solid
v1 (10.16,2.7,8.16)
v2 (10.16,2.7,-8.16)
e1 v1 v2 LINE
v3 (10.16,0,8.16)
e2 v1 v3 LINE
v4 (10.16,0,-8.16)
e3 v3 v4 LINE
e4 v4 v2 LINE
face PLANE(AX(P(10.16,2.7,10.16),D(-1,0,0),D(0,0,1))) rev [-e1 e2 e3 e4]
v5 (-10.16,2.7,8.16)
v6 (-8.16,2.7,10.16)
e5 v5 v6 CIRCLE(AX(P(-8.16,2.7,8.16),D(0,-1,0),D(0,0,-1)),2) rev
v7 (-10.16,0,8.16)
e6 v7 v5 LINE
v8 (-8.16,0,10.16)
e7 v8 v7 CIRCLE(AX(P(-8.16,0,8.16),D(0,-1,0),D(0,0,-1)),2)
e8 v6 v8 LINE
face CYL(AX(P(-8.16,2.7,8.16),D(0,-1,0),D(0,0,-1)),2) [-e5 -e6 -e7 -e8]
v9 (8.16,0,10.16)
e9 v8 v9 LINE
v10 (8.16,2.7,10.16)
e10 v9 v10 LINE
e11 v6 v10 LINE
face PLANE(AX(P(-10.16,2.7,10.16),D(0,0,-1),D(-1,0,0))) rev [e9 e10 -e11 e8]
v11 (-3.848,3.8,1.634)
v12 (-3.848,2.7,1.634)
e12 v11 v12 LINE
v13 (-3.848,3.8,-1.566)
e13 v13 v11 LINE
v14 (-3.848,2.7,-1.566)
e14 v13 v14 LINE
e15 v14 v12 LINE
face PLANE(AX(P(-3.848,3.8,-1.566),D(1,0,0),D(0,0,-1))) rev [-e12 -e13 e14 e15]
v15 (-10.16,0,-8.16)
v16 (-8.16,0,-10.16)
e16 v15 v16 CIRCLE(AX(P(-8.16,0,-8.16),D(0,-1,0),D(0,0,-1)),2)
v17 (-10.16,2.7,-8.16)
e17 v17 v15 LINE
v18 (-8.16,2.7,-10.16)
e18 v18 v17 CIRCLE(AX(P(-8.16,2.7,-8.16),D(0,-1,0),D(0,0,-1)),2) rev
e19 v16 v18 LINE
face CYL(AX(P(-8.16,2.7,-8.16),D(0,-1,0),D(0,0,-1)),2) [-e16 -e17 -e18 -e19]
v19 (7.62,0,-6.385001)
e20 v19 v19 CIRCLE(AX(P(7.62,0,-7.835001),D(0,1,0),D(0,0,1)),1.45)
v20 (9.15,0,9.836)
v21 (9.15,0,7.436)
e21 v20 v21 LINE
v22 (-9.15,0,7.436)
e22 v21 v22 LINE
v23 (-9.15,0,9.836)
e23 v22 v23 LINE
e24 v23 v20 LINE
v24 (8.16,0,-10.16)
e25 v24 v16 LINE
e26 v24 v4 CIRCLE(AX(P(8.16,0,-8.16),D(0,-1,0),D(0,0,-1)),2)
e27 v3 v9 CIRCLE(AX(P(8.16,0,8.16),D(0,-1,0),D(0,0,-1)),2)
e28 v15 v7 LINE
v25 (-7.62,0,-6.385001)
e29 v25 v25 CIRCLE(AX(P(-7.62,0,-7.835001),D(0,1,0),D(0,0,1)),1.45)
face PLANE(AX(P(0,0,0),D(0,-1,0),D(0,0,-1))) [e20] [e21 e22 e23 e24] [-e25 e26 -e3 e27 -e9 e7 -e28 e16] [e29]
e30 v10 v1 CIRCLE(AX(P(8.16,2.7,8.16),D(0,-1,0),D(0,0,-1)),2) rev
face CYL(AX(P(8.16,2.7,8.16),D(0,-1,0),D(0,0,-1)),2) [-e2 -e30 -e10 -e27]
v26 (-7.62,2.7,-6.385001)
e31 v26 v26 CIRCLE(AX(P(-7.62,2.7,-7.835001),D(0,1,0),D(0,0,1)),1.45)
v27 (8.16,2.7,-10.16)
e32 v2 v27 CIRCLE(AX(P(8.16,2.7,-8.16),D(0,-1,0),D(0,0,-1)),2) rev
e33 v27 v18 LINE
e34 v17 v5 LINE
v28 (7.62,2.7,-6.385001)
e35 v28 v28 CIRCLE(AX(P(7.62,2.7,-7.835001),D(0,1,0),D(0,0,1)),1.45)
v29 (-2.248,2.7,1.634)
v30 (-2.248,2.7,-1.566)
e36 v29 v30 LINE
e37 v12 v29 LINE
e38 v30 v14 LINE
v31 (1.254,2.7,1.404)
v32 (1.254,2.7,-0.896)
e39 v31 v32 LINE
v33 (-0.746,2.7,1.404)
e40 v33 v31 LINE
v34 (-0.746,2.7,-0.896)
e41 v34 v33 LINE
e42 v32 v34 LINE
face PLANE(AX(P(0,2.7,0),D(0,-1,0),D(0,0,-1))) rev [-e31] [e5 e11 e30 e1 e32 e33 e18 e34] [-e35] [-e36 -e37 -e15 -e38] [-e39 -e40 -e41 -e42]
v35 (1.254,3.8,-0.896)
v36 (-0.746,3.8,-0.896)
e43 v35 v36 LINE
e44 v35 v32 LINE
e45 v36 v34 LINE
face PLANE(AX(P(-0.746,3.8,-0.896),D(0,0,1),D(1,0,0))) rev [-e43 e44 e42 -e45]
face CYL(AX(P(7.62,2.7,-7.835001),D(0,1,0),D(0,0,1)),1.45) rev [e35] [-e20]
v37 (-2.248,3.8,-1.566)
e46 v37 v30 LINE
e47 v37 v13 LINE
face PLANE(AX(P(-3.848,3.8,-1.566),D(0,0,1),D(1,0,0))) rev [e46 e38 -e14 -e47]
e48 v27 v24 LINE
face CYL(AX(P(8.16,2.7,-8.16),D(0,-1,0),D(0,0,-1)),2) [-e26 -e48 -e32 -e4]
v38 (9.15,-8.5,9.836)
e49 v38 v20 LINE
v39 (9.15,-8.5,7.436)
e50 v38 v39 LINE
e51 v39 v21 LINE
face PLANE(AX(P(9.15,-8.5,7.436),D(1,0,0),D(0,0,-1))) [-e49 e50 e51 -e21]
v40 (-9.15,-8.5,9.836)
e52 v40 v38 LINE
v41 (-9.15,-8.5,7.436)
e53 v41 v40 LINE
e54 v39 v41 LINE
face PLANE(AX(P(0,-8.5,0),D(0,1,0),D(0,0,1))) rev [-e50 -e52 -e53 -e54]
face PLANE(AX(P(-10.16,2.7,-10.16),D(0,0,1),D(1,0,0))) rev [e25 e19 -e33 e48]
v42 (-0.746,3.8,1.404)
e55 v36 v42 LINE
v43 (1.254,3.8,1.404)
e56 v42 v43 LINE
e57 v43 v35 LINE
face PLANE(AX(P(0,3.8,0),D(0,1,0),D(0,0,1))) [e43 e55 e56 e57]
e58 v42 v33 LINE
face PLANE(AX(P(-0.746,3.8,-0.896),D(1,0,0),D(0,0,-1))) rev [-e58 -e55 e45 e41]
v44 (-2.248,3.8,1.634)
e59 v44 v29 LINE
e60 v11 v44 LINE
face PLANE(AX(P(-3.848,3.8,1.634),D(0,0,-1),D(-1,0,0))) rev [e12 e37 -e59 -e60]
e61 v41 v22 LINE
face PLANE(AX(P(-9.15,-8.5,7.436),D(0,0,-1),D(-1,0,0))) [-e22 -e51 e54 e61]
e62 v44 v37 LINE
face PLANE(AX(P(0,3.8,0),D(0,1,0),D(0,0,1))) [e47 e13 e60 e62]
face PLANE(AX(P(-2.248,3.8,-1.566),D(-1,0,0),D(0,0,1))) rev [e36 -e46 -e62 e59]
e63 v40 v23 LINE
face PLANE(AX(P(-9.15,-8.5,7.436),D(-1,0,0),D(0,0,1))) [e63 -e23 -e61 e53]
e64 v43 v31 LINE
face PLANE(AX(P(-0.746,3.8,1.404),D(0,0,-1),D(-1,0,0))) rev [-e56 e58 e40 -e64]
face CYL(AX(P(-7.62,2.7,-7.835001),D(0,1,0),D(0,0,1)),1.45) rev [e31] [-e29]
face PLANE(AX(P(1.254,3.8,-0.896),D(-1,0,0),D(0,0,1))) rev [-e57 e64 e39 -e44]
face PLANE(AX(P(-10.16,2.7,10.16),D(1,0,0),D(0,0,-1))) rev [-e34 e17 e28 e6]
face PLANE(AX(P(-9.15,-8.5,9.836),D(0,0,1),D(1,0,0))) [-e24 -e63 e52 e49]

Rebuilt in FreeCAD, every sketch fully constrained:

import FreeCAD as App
import Part
import Sketcher
from FreeCAD import Vector
Q = App.Units.Quantity


def edges_at(feature, points):
    """Names of the edges that pass closest to the given points."""
    edges = feature.Shape.Edges
    near = lambda p: min(range(len(edges)), key=lambda i: edges[i].distToShape(Part.Vertex(*p))[0])
    return sorted({f"Edge{near(p) + 1}" for p in points})

doc = App.newDocument("Part")
body = doc.addObject("PartDesign::Body", "Body")

sketch1 = doc.addObject("Sketcher::SketchObject", "Sketch")
body.addObject(sketch1)
sketch1.AttachmentSupport = (doc.XZ_Plane, [""])
sketch1.MapMode = "FlatFace"
sketch1.addGeometry(Part.LineSegment(Vector(-10, -10, 0), Vector(-10, 10, 0)), False)
sketch1.addGeometry(Part.LineSegment(Vector(-10, 10, 0), Vector(10, 10, 0)), False)
sketch1.addGeometry(Part.LineSegment(Vector(10, 10, 0), Vector(10, -10, 0)), False)
sketch1.addGeometry(Part.LineSegment(Vector(10, -10, 0), Vector(-10, -10, 0)), False)
sketch1.addConstraint(Sketcher.Constraint("Coincident", 0, 2, 1, 1))
sketch1.addConstraint(Sketcher.Constraint("Coincident", 1, 2, 2, 1))
sketch1.addConstraint(Sketcher.Constraint("Coincident", 2, 2, 3, 1))
sketch1.addConstraint(Sketcher.Constraint("Coincident", 3, 2, 0, 1))
sketch1.addConstraint(Sketcher.Constraint("Vertical", 0))
sketch1.addConstraint(Sketcher.Constraint("Horizontal", 1))
sketch1.addConstraint(Sketcher.Constraint("Vertical", 2))
sketch1.addConstraint(Sketcher.Constraint("Horizontal", 3))
sketch1.addConstraint(Sketcher.Constraint("Symmetric", 0, 2, 2, 2, -1, 1))
sketch1.addConstraint(Sketcher.Constraint("Equal", 3, 0))
sketch1.addConstraint(Sketcher.Constraint("DistanceX", 1, 1, 1, 2, Q("20.32 mm")))
pad1 = doc.addObject("PartDesign::Pad", "Pad")
body.addObject(pad1)
pad1.Profile = sketch1
pad1.Length = 2.7
pad1.Reversed = True

sketch2 = doc.addObject("Sketcher::SketchObject", "Sketch001")
body.addObject(sketch2)
sketch2.AttachmentSupport = (doc.XZ_Plane, [""])
sketch2.MapMode = "FlatFace"
sketch2.AttachmentOffset = App.Placement(Vector(0, 0, -2.7), App.Rotation())
sketch2.addGeometry(Part.Circle(Vector(-7.6, -7.8, 0), Vector(0, 0, 1), 1.4), False)
sketch2.addGeometry(Part.Circle(Vector(7.6, -7.8, 0), Vector(0, 0, 1), 1.4), False)
sketch2.addConstraint(Sketcher.Constraint("Equal", 0, 1))
sketch2.addConstraint(Sketcher.Constraint("Symmetric", 0, 3, 1, 3, -2))
sketch2.addConstraint(Sketcher.Constraint("Diameter", 0, Q("2.9 mm")))
sketch2.addConstraint(Sketcher.Constraint("DistanceX", 0, 3, -1, 1, Q("7.62 mm")))
sketch2.addConstraint(Sketcher.Constraint("DistanceY", 0, 3, -1, 1, Q("7.835001 mm")))
doc.recompute()
hole = doc.addObject("PartDesign::Hole", "Hole")
body.addObject(hole)
hole.Profile = sketch2
hole.ThreadType = "None"
hole.Diameter = 2.9
hole.DepthType = "ThroughAll"
hole.Reversed = True

sketch3 = doc.addObject("Sketcher::SketchObject", "Sketch002")
body.addObject(sketch3)
sketch3.AttachmentSupport = (doc.XZ_Plane, [""])
sketch3.MapMode = "FlatFace"
sketch3.AttachmentOffset = App.Placement(Vector(0, 0, -2.7), App.Rotation())
sketch3.addGeometry(Part.LineSegment(Vector(-0.7, -0.9, 0), Vector(-0.7, 1.4, 0)), False)
sketch3.addGeometry(Part.LineSegment(Vector(-0.7, 1.4, 0), Vector(1.3, 1.4, 0)), False)
sketch3.addGeometry(Part.LineSegment(Vector(1.3, 1.4, 0), Vector(1.3, -0.9, 0)), False)
sketch3.addGeometry(Part.LineSegment(Vector(1.3, -0.9, 0), Vector(-0.7, -0.9, 0)), False)
sketch3.addGeometry(Part.LineSegment(Vector(-3.8, -1.6, 0), Vector(-3.8, 1.6, 0)), False)
sketch3.addGeometry(Part.LineSegment(Vector(-3.8, 1.6, 0), Vector(-2.2, 1.6, 0)), False)
sketch3.addGeometry(Part.LineSegment(Vector(-2.2, 1.6, 0), Vector(-2.2, -1.6, 0)), False)
sketch3.addGeometry(Part.LineSegment(Vector(-2.2, -1.6, 0), Vector(-3.8, -1.6, 0)), False)
sketch3.addConstraint(Sketcher.Constraint("Coincident", 0, 2, 1, 1))
sketch3.addConstraint(Sketcher.Constraint("Coincident", 1, 2, 2, 1))
sketch3.addConstraint(Sketcher.Constraint("Coincident", 2, 2, 3, 1))
sketch3.addConstraint(Sketcher.Constraint("Coincident", 3, 2, 0, 1))
sketch3.addConstraint(Sketcher.Constraint("Coincident", 4, 2, 5, 1))
sketch3.addConstraint(Sketcher.Constraint("Coincident", 5, 2, 6, 1))
sketch3.addConstraint(Sketcher.Constraint("Coincident", 6, 2, 7, 1))
sketch3.addConstraint(Sketcher.Constraint("Coincident", 7, 2, 4, 1))
sketch3.addConstraint(Sketcher.Constraint("Vertical", 0))
sketch3.addConstraint(Sketcher.Constraint("Horizontal", 1))
sketch3.addConstraint(Sketcher.Constraint("Vertical", 2))
sketch3.addConstraint(Sketcher.Constraint("Horizontal", 3))
sketch3.addConstraint(Sketcher.Constraint("Vertical", 4))
sketch3.addConstraint(Sketcher.Constraint("Horizontal", 5))
sketch3.addConstraint(Sketcher.Constraint("Vertical", 6))
sketch3.addConstraint(Sketcher.Constraint("Horizontal", 7))
sketch3.addConstraint(Sketcher.Constraint("DistanceX", 1, 1, 1, 2, Q("2 mm")))
sketch3.addConstraint(Sketcher.Constraint("DistanceX", 5, 1, 5, 2, Q("1.6 mm")))
sketch3.addConstraint(Sketcher.Constraint("DistanceY", 0, 1, 0, 2, Q("2.3 mm")))
sketch3.addConstraint(Sketcher.Constraint("DistanceY", 4, 1, 4, 2, Q("3.2 mm")))
sketch3.addConstraint(Sketcher.Constraint("DistanceY", 0, 2, 4, 2, Q("0.23 mm")))
sketch3.addConstraint(Sketcher.Constraint("DistanceX", 0, 2, -1, 1, Q("0.746 mm")))
sketch3.addConstraint(Sketcher.Constraint("DistanceY", -1, 1, 0, 2, Q("1.404 mm")))
sketch3.addConstraint(Sketcher.Constraint("DistanceX", 4, 2, -1, 1, Q("3.848 mm")))
pad2 = doc.addObject("PartDesign::Pad", "Pad001")
body.addObject(pad2)
pad2.Profile = sketch3
pad2.Length = 1.1
pad2.Reversed = True

sketch4 = doc.addObject("Sketcher::SketchObject", "Sketch003")
body.addObject(sketch4)
sketch4.AttachmentSupport = (doc.XZ_Plane, [""])
sketch4.MapMode = "FlatFace"
sketch4.addGeometry(Part.LineSegment(Vector(-9.2, 7.4, 0), Vector(-9.2, 9.8, 0)), False)
sketch4.addGeometry(Part.LineSegment(Vector(-9.2, 9.8, 0), Vector(9.2, 9.8, 0)), False)
sketch4.addGeometry(Part.LineSegment(Vector(9.2, 9.8, 0), Vector(9.2, 7.4, 0)), False)
sketch4.addGeometry(Part.LineSegment(Vector(9.2, 7.4, 0), Vector(-9.2, 7.4, 0)), False)
sketch4.addConstraint(Sketcher.Constraint("Coincident", 0, 2, 1, 1))
sketch4.addConstraint(Sketcher.Constraint("Coincident", 1, 2, 2, 1))
sketch4.addConstraint(Sketcher.Constraint("Coincident", 2, 2, 3, 1))
sketch4.addConstraint(Sketcher.Constraint("Coincident", 3, 2, 0, 1))
sketch4.addConstraint(Sketcher.Constraint("Vertical", 0))
sketch4.addConstraint(Sketcher.Constraint("Horizontal", 1))
sketch4.addConstraint(Sketcher.Constraint("Vertical", 2))
sketch4.addConstraint(Sketcher.Constraint("Horizontal", 3))
sketch4.addConstraint(Sketcher.Constraint("DistanceX", 1, 1, 1, 2, Q("18.3 mm")))
sketch4.addConstraint(Sketcher.Constraint("DistanceY", 0, 1, 0, 2, Q("2.4 mm")))
sketch4.addConstraint(Sketcher.Constraint("DistanceX", 0, 2, -1, 1, Q("9.15 mm")))
sketch4.addConstraint(Sketcher.Constraint("DistanceY", -1, 1, 0, 2, Q("9.836 mm")))
pad3 = doc.addObject("PartDesign::Pad", "Pad002")
body.addObject(pad3)
pad3.Profile = sketch4
pad3.Length = 8.5
doc.recompute()

fillet = doc.addObject("PartDesign::Fillet", "Fillet")
body.addObject(fillet)
fillet.Base = (pad3, edges_at(pad3, [
    (-10.16, 1.35, -10.16),
    (10.16, 1.35, -10.16),
    (10.16, 1.35, 10.16),
    (-10.16, 1.35, 10.16),
]))
fillet.Radius = 2

doc.recompute()
